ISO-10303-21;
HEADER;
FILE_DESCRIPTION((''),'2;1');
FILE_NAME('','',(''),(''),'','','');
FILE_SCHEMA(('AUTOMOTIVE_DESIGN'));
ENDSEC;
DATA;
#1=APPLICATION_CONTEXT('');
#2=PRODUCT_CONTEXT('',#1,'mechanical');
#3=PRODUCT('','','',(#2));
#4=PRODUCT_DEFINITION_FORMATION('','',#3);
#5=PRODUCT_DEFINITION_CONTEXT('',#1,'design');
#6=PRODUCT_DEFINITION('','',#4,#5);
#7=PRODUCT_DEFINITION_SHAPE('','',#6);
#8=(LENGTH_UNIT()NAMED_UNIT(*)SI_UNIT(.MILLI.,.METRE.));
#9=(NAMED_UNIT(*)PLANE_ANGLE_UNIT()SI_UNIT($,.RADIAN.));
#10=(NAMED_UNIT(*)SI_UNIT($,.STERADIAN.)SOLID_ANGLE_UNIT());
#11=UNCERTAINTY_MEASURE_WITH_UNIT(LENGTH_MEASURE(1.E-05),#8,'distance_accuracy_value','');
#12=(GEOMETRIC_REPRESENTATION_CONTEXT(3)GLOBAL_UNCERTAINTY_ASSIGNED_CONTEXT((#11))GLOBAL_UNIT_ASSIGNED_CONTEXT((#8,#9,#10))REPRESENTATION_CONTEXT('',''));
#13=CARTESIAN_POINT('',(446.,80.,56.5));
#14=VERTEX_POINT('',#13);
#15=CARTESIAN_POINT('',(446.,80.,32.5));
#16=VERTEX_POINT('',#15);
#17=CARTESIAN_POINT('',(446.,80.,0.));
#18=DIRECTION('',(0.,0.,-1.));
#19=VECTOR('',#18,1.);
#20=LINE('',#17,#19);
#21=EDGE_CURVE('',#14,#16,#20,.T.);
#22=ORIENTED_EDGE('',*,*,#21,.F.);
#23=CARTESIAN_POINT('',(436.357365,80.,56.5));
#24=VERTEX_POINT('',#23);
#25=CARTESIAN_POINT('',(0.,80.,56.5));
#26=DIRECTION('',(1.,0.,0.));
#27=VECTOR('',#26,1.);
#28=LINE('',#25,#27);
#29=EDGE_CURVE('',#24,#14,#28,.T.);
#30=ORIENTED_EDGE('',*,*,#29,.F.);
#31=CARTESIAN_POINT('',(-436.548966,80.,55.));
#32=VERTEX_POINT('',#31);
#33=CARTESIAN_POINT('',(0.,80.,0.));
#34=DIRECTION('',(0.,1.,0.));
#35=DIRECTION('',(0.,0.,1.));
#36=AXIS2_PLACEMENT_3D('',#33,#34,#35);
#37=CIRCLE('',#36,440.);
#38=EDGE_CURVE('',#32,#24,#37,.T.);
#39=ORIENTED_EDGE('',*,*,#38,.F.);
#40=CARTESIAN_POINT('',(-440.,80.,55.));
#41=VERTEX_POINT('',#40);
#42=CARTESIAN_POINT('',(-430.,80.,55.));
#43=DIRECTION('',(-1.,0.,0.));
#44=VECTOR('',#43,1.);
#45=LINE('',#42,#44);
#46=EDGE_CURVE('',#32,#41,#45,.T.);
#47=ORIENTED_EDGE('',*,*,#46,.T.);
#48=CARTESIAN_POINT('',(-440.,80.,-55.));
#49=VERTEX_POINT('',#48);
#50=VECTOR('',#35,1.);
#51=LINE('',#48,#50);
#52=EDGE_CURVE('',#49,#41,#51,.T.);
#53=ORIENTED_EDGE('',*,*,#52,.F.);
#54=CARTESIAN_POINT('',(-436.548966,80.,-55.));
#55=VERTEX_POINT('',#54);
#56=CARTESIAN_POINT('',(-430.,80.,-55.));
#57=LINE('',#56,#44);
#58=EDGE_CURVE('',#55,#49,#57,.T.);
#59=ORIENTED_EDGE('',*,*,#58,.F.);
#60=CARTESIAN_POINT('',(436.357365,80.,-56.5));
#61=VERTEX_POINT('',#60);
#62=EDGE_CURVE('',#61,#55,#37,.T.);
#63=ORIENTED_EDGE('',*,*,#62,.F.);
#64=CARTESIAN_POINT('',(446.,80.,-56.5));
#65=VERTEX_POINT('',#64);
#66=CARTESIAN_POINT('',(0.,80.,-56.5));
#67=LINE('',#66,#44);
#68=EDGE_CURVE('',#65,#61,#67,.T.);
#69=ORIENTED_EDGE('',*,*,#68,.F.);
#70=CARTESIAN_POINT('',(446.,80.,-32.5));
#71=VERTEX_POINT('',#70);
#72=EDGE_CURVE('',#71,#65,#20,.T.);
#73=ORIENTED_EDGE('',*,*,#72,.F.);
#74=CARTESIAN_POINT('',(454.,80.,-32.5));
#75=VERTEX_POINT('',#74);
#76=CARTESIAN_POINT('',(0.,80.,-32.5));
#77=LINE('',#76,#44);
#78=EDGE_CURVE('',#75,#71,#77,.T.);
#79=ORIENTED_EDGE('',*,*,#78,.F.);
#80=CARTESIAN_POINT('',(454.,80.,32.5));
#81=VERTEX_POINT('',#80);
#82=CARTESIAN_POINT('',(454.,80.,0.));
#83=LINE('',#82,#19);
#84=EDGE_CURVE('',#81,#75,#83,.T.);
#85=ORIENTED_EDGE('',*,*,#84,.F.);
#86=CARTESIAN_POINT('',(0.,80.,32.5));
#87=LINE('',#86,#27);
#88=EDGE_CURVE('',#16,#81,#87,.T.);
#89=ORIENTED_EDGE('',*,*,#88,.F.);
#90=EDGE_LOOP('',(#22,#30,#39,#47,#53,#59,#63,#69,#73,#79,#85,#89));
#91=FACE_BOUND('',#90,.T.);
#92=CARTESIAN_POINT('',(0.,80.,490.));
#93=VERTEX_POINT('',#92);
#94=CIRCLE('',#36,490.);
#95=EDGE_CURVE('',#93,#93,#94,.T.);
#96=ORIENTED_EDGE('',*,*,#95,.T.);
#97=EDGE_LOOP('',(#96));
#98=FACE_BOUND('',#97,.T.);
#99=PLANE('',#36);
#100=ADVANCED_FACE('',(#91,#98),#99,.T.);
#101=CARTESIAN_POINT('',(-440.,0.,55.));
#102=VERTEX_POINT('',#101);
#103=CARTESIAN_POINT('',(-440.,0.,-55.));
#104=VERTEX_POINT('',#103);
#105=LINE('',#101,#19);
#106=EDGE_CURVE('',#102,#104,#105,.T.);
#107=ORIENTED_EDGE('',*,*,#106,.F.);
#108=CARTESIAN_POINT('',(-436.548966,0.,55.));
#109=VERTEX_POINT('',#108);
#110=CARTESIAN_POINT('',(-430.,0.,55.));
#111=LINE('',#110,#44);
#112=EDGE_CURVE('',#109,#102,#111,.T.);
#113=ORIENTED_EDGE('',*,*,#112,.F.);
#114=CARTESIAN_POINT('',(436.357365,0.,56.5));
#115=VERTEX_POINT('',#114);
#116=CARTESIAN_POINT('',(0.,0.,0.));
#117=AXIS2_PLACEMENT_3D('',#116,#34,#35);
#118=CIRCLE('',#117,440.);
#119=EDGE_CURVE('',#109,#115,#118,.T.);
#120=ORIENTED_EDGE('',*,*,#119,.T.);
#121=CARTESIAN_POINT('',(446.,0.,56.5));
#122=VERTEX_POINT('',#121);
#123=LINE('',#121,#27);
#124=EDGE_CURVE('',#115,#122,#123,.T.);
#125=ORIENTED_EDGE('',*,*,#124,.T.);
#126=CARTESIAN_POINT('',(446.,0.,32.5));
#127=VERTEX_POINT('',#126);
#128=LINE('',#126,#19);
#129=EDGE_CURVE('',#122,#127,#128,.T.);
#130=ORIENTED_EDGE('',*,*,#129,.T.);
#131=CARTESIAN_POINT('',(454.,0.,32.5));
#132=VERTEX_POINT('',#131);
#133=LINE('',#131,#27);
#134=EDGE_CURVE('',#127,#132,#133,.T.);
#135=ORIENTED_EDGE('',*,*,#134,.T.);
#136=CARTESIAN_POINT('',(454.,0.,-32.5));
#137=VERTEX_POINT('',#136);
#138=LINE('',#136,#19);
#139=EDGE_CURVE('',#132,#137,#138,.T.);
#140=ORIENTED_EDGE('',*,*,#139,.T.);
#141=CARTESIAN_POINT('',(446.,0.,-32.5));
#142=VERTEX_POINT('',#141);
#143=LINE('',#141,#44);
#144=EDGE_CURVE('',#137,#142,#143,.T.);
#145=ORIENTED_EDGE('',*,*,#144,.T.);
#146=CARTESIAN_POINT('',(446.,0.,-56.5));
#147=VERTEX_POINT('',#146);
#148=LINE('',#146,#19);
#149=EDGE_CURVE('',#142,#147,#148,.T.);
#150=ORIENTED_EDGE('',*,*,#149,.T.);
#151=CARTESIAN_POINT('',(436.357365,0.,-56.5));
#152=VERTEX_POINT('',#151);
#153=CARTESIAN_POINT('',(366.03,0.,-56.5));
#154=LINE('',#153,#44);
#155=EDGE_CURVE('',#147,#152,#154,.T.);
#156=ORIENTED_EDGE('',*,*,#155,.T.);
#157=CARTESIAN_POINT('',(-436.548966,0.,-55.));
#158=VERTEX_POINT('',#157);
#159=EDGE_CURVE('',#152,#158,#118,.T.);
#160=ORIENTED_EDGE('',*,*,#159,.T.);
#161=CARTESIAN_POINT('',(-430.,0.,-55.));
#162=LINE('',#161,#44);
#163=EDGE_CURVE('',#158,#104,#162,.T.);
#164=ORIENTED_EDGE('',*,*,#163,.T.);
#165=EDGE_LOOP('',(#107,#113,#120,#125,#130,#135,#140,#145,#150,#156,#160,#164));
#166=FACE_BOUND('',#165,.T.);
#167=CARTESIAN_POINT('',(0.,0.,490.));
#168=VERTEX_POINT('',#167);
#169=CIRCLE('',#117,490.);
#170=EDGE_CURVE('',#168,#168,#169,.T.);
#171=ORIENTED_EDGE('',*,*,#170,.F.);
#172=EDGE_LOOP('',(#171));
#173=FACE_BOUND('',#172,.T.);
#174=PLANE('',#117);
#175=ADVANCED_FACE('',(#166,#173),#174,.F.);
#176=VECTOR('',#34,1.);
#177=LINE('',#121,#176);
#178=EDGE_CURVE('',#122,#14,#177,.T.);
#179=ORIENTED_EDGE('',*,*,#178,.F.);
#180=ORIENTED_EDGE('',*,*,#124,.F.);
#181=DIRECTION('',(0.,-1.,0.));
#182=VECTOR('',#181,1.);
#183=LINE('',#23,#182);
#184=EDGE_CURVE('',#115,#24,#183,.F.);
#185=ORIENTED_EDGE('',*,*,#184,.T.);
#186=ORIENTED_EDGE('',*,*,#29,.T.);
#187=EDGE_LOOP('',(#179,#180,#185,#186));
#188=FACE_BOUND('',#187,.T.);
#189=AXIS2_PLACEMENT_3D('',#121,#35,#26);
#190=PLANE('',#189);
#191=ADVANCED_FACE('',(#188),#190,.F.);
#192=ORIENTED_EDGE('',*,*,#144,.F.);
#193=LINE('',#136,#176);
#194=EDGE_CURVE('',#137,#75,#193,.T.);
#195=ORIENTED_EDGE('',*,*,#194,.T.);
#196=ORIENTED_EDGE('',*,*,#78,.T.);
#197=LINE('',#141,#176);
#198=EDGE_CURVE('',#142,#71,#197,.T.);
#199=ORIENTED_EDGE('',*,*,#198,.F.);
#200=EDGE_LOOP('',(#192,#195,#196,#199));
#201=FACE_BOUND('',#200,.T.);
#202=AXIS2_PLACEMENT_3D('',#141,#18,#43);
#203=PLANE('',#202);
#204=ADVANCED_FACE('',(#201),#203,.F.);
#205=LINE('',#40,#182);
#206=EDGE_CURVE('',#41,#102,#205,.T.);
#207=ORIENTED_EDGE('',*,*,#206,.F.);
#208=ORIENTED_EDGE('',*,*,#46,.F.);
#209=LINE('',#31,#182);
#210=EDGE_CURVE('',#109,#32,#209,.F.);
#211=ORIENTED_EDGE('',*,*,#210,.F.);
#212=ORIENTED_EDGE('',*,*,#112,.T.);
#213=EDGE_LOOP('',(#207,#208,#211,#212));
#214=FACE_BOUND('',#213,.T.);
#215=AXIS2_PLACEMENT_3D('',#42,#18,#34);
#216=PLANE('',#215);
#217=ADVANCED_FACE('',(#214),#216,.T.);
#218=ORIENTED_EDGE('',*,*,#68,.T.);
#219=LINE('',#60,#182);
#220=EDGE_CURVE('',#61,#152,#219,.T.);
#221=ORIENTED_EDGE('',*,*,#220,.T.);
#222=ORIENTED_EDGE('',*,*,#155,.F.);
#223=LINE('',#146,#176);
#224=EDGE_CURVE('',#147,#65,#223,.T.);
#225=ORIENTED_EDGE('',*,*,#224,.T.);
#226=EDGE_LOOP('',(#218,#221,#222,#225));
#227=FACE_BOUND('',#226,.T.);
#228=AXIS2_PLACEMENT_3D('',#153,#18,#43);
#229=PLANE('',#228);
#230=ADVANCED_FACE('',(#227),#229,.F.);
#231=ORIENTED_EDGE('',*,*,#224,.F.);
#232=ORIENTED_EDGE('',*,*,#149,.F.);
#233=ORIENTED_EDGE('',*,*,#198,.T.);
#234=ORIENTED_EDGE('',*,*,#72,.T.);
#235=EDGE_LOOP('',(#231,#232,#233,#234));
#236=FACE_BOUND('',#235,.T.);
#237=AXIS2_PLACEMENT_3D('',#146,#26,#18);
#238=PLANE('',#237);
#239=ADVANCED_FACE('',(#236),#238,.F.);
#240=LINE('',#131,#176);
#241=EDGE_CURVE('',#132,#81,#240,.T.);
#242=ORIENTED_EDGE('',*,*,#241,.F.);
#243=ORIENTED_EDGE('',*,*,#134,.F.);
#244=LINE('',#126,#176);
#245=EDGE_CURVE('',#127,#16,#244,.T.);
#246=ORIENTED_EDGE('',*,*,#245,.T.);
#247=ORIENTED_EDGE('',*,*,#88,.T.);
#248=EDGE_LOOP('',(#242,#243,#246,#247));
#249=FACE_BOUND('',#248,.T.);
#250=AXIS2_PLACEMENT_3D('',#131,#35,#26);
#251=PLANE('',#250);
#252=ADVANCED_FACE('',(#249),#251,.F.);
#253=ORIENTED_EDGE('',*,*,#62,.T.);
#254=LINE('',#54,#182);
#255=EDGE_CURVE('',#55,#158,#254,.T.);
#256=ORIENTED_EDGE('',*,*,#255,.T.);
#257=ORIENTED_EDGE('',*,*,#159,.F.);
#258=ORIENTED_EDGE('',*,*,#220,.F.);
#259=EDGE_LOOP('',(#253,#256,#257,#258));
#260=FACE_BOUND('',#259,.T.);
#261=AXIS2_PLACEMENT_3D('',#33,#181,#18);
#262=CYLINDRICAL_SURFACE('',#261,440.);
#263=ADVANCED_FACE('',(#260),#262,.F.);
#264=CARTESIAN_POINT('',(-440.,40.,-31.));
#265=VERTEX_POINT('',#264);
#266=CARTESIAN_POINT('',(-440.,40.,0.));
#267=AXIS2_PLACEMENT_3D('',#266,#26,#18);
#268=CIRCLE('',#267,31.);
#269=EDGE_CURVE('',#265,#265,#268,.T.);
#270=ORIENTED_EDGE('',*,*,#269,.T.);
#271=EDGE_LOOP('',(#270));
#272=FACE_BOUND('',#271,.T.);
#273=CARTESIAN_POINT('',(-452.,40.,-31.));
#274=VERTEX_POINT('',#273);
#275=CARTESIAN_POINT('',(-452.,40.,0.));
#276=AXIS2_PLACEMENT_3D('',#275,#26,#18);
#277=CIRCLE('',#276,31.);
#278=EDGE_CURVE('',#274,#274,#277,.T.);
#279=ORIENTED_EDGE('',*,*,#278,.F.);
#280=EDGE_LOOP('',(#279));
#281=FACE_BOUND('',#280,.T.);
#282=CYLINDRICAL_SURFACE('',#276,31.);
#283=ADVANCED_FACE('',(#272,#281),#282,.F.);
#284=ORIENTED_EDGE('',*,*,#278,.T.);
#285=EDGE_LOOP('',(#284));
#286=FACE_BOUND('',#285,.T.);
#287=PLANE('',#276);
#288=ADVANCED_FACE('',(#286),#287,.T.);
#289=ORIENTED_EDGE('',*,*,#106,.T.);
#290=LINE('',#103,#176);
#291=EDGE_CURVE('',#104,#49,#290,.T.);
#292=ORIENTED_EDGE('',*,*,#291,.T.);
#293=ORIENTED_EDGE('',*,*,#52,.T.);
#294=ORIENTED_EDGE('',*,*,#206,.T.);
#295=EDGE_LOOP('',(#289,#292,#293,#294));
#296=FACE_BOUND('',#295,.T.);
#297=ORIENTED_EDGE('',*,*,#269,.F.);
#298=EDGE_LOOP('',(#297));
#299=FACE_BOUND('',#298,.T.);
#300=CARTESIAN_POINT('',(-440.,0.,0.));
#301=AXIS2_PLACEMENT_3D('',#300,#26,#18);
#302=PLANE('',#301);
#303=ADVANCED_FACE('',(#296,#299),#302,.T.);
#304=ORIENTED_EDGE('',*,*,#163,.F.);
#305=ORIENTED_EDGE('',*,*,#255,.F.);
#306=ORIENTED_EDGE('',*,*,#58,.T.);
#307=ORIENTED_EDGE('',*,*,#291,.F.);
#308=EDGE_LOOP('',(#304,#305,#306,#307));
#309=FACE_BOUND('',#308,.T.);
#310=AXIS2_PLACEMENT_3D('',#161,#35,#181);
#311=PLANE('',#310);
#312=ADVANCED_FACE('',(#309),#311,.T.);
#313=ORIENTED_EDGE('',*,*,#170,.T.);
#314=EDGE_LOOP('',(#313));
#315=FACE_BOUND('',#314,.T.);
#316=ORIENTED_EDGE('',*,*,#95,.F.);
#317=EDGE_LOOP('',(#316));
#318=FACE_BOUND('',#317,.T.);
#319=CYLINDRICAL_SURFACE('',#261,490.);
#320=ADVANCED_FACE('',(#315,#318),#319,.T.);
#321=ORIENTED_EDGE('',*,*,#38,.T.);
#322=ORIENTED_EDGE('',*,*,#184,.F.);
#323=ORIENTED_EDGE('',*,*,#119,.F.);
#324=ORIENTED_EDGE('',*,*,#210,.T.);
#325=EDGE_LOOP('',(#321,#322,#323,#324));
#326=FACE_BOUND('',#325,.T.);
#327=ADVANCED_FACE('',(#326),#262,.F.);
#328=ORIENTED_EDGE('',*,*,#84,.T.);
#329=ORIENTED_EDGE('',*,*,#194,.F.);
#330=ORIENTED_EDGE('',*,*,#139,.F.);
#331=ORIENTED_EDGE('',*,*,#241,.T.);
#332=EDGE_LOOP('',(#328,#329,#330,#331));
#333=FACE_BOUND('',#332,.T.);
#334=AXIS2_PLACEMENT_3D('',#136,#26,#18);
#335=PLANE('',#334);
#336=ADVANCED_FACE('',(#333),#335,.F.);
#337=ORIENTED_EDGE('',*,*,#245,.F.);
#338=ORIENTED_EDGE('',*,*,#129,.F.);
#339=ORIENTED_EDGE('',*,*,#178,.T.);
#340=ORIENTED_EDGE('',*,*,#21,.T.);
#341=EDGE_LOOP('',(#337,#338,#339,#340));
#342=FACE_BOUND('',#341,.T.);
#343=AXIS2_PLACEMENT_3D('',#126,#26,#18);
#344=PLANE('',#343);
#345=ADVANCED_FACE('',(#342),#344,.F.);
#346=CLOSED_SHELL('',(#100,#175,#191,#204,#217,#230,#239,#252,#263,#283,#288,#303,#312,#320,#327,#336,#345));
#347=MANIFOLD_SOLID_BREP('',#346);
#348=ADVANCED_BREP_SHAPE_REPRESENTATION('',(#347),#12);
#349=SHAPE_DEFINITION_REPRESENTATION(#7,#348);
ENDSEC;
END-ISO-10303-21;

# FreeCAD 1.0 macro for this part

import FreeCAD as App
import Part
import Sketcher

V = App.Vector


def add_polygon(sketch, points):
    """Adds a closed chain of lines whose ends are joined by coincident constraints."""
    first, n = sketch.GeometryCount, len(points)
    for a, b in zip(points, points[1:] + points[:1]):
        sketch.addGeometry(Part.LineSegment(App.Vector(*a, 0), App.Vector(*b, 0)), False)
    for i in range(n):
        sketch.addConstraint(Sketcher.Constraint("Coincident", first + i, 2, first + (i + 1) % n, 1))

doc = App.newDocument("Part")
body = doc.addObject("PartDesign::Body", "Body")

# Sketch on XZ plane
sketch1 = body.newObject("Sketcher::SketchObject", "Sketch")
sketch1.AttachmentSupport = (doc.getObject("XZ_Plane"), [""])
sketch1.MapMode = "FlatFace"
sketch1.addGeometry([
    Part.Circle(V(0, 0, 0), V(0, 0, 1), 490),
    Part.Circle(V(0, 0, 0), V(0, 0, 1), 440),
], False)
sketch1.addConstraint([
    Sketcher.Constraint("Coincident", 0, 3, -1, 1),
    Sketcher.Constraint("Coincident", 1, 3, -1, 1),
    Sketcher.Constraint("Diameter", 0, 980.0),
    Sketcher.Constraint("Diameter", 1, 880.0),
])
pad1 = body.newObject("PartDesign::Pad", "Pad")
pad1.Profile = sketch1
pad1.Length = 80
pad1.Reversed = True

# Sketch on XZ plane
sketch2 = body.newObject("Sketcher::SketchObject", "Sketch001")
sketch2.AttachmentSupport = (doc.getObject("XZ_Plane"), [""])
sketch2.MapMode = "FlatFace"
sketch2.AttachmentOffset = App.Placement(V(0, 0, -80), App.Rotation())
add_polygon(sketch2, [(454, -32), (446, -32), (446, -56), (366, -56), (366, 56), (446, 56), (446, 32), (454, 32)])  # lines 0-7
sketch2.addConstraint([
    Sketcher.Constraint("Horizontal", 0),
    Sketcher.Constraint("Vertical", 1),
    Sketcher.Constraint("Horizontal", 2),
    Sketcher.Constraint("Vertical", 3),
    Sketcher.Constraint("Horizontal", 4),
    Sketcher.Constraint("Vertical", 5),
    Sketcher.Constraint("Horizontal", 6),
    Sketcher.Constraint("Vertical", 7),
    Sketcher.Constraint("Symmetric", 1, 2, 4, 2, -1),
    Sketcher.Constraint("Equal", 1, 5),
    Sketcher.Constraint("DistanceX", 0, 2, 0, 1, 8.0),
    Sketcher.Constraint("DistanceY", 1, 2, 1, 1, 24.0),
    Sketcher.Constraint("DistanceY", 3, 1, 3, 2, 113.0),
    Sketcher.Constraint("DistanceX", -1, 1, 0, 2, 446.0),
    Sketcher.Constraint("DistanceX", 2, 2, 2, 1, 79.97),
])
pocket1 = body.newObject("PartDesign::Pocket", "Pocket")
pocket1.Profile = sketch2
pocket1.Type = "ThroughAll"
pocket1.Midplane = True

# Sketch on YZ plane
sketch3 = body.newObject("Sketcher::SketchObject", "Sketch002")
sketch3.AttachmentSupport = (doc.getObject("YZ_Plane"), [""])
sketch3.MapMode = "FlatFace"
sketch3.AttachmentOffset = App.Placement(V(0, 0, -440), App.Rotation())
add_polygon(sketch3, [(80, 55), (0, 55), (0, -55), (80, -55)])  # lines 0-3
sketch3.addConstraint([
    Sketcher.Constraint("Horizontal", 0),
    Sketcher.Constraint("Vertical", 1),
    Sketcher.Constraint("Horizontal", 2),
    Sketcher.Constraint("Vertical", 3),
    Sketcher.Constraint("Symmetric", 0, 2, 1, 2, -1, 1),
    Sketcher.Constraint("DistanceX", 0, 2, 0, 1, 80.0),
    Sketcher.Constraint("DistanceY", 1, 2, 1, 1, 110.0),
])
pocket2 = body.newObject("PartDesign::Pocket", "Pocket001")
pocket2.Profile = sketch3
pocket2.Length = 10
pocket2.Reversed = True

# Sketch on YZ plane
sketch4 = body.newObject("Sketcher::SketchObject", "Sketch003")
sketch4.AttachmentSupport = (doc.getObject("YZ_Plane"), [""])
sketch4.MapMode = "FlatFace"
sketch4.AttachmentOffset = App.Placement(V(0, 0, -440), App.Rotation())
sketch4.addGeometry(Part.Circle(V(40, 0, 0), V(0, 0, 1), 31), False)
sketch4.addConstraint([
    Sketcher.Constraint("PointOnObject", 0, 3, -1),
    Sketcher.Constraint("Diameter", 0, 62.0),
    Sketcher.Constraint("DistanceX", -1, 1, 0, 3, 40.0),
])
pocket3 = body.newObject("PartDesign::Pocket", "Pocket002")
pocket3.Profile = sketch4
pocket3.Length = 12

doc.recompute()
